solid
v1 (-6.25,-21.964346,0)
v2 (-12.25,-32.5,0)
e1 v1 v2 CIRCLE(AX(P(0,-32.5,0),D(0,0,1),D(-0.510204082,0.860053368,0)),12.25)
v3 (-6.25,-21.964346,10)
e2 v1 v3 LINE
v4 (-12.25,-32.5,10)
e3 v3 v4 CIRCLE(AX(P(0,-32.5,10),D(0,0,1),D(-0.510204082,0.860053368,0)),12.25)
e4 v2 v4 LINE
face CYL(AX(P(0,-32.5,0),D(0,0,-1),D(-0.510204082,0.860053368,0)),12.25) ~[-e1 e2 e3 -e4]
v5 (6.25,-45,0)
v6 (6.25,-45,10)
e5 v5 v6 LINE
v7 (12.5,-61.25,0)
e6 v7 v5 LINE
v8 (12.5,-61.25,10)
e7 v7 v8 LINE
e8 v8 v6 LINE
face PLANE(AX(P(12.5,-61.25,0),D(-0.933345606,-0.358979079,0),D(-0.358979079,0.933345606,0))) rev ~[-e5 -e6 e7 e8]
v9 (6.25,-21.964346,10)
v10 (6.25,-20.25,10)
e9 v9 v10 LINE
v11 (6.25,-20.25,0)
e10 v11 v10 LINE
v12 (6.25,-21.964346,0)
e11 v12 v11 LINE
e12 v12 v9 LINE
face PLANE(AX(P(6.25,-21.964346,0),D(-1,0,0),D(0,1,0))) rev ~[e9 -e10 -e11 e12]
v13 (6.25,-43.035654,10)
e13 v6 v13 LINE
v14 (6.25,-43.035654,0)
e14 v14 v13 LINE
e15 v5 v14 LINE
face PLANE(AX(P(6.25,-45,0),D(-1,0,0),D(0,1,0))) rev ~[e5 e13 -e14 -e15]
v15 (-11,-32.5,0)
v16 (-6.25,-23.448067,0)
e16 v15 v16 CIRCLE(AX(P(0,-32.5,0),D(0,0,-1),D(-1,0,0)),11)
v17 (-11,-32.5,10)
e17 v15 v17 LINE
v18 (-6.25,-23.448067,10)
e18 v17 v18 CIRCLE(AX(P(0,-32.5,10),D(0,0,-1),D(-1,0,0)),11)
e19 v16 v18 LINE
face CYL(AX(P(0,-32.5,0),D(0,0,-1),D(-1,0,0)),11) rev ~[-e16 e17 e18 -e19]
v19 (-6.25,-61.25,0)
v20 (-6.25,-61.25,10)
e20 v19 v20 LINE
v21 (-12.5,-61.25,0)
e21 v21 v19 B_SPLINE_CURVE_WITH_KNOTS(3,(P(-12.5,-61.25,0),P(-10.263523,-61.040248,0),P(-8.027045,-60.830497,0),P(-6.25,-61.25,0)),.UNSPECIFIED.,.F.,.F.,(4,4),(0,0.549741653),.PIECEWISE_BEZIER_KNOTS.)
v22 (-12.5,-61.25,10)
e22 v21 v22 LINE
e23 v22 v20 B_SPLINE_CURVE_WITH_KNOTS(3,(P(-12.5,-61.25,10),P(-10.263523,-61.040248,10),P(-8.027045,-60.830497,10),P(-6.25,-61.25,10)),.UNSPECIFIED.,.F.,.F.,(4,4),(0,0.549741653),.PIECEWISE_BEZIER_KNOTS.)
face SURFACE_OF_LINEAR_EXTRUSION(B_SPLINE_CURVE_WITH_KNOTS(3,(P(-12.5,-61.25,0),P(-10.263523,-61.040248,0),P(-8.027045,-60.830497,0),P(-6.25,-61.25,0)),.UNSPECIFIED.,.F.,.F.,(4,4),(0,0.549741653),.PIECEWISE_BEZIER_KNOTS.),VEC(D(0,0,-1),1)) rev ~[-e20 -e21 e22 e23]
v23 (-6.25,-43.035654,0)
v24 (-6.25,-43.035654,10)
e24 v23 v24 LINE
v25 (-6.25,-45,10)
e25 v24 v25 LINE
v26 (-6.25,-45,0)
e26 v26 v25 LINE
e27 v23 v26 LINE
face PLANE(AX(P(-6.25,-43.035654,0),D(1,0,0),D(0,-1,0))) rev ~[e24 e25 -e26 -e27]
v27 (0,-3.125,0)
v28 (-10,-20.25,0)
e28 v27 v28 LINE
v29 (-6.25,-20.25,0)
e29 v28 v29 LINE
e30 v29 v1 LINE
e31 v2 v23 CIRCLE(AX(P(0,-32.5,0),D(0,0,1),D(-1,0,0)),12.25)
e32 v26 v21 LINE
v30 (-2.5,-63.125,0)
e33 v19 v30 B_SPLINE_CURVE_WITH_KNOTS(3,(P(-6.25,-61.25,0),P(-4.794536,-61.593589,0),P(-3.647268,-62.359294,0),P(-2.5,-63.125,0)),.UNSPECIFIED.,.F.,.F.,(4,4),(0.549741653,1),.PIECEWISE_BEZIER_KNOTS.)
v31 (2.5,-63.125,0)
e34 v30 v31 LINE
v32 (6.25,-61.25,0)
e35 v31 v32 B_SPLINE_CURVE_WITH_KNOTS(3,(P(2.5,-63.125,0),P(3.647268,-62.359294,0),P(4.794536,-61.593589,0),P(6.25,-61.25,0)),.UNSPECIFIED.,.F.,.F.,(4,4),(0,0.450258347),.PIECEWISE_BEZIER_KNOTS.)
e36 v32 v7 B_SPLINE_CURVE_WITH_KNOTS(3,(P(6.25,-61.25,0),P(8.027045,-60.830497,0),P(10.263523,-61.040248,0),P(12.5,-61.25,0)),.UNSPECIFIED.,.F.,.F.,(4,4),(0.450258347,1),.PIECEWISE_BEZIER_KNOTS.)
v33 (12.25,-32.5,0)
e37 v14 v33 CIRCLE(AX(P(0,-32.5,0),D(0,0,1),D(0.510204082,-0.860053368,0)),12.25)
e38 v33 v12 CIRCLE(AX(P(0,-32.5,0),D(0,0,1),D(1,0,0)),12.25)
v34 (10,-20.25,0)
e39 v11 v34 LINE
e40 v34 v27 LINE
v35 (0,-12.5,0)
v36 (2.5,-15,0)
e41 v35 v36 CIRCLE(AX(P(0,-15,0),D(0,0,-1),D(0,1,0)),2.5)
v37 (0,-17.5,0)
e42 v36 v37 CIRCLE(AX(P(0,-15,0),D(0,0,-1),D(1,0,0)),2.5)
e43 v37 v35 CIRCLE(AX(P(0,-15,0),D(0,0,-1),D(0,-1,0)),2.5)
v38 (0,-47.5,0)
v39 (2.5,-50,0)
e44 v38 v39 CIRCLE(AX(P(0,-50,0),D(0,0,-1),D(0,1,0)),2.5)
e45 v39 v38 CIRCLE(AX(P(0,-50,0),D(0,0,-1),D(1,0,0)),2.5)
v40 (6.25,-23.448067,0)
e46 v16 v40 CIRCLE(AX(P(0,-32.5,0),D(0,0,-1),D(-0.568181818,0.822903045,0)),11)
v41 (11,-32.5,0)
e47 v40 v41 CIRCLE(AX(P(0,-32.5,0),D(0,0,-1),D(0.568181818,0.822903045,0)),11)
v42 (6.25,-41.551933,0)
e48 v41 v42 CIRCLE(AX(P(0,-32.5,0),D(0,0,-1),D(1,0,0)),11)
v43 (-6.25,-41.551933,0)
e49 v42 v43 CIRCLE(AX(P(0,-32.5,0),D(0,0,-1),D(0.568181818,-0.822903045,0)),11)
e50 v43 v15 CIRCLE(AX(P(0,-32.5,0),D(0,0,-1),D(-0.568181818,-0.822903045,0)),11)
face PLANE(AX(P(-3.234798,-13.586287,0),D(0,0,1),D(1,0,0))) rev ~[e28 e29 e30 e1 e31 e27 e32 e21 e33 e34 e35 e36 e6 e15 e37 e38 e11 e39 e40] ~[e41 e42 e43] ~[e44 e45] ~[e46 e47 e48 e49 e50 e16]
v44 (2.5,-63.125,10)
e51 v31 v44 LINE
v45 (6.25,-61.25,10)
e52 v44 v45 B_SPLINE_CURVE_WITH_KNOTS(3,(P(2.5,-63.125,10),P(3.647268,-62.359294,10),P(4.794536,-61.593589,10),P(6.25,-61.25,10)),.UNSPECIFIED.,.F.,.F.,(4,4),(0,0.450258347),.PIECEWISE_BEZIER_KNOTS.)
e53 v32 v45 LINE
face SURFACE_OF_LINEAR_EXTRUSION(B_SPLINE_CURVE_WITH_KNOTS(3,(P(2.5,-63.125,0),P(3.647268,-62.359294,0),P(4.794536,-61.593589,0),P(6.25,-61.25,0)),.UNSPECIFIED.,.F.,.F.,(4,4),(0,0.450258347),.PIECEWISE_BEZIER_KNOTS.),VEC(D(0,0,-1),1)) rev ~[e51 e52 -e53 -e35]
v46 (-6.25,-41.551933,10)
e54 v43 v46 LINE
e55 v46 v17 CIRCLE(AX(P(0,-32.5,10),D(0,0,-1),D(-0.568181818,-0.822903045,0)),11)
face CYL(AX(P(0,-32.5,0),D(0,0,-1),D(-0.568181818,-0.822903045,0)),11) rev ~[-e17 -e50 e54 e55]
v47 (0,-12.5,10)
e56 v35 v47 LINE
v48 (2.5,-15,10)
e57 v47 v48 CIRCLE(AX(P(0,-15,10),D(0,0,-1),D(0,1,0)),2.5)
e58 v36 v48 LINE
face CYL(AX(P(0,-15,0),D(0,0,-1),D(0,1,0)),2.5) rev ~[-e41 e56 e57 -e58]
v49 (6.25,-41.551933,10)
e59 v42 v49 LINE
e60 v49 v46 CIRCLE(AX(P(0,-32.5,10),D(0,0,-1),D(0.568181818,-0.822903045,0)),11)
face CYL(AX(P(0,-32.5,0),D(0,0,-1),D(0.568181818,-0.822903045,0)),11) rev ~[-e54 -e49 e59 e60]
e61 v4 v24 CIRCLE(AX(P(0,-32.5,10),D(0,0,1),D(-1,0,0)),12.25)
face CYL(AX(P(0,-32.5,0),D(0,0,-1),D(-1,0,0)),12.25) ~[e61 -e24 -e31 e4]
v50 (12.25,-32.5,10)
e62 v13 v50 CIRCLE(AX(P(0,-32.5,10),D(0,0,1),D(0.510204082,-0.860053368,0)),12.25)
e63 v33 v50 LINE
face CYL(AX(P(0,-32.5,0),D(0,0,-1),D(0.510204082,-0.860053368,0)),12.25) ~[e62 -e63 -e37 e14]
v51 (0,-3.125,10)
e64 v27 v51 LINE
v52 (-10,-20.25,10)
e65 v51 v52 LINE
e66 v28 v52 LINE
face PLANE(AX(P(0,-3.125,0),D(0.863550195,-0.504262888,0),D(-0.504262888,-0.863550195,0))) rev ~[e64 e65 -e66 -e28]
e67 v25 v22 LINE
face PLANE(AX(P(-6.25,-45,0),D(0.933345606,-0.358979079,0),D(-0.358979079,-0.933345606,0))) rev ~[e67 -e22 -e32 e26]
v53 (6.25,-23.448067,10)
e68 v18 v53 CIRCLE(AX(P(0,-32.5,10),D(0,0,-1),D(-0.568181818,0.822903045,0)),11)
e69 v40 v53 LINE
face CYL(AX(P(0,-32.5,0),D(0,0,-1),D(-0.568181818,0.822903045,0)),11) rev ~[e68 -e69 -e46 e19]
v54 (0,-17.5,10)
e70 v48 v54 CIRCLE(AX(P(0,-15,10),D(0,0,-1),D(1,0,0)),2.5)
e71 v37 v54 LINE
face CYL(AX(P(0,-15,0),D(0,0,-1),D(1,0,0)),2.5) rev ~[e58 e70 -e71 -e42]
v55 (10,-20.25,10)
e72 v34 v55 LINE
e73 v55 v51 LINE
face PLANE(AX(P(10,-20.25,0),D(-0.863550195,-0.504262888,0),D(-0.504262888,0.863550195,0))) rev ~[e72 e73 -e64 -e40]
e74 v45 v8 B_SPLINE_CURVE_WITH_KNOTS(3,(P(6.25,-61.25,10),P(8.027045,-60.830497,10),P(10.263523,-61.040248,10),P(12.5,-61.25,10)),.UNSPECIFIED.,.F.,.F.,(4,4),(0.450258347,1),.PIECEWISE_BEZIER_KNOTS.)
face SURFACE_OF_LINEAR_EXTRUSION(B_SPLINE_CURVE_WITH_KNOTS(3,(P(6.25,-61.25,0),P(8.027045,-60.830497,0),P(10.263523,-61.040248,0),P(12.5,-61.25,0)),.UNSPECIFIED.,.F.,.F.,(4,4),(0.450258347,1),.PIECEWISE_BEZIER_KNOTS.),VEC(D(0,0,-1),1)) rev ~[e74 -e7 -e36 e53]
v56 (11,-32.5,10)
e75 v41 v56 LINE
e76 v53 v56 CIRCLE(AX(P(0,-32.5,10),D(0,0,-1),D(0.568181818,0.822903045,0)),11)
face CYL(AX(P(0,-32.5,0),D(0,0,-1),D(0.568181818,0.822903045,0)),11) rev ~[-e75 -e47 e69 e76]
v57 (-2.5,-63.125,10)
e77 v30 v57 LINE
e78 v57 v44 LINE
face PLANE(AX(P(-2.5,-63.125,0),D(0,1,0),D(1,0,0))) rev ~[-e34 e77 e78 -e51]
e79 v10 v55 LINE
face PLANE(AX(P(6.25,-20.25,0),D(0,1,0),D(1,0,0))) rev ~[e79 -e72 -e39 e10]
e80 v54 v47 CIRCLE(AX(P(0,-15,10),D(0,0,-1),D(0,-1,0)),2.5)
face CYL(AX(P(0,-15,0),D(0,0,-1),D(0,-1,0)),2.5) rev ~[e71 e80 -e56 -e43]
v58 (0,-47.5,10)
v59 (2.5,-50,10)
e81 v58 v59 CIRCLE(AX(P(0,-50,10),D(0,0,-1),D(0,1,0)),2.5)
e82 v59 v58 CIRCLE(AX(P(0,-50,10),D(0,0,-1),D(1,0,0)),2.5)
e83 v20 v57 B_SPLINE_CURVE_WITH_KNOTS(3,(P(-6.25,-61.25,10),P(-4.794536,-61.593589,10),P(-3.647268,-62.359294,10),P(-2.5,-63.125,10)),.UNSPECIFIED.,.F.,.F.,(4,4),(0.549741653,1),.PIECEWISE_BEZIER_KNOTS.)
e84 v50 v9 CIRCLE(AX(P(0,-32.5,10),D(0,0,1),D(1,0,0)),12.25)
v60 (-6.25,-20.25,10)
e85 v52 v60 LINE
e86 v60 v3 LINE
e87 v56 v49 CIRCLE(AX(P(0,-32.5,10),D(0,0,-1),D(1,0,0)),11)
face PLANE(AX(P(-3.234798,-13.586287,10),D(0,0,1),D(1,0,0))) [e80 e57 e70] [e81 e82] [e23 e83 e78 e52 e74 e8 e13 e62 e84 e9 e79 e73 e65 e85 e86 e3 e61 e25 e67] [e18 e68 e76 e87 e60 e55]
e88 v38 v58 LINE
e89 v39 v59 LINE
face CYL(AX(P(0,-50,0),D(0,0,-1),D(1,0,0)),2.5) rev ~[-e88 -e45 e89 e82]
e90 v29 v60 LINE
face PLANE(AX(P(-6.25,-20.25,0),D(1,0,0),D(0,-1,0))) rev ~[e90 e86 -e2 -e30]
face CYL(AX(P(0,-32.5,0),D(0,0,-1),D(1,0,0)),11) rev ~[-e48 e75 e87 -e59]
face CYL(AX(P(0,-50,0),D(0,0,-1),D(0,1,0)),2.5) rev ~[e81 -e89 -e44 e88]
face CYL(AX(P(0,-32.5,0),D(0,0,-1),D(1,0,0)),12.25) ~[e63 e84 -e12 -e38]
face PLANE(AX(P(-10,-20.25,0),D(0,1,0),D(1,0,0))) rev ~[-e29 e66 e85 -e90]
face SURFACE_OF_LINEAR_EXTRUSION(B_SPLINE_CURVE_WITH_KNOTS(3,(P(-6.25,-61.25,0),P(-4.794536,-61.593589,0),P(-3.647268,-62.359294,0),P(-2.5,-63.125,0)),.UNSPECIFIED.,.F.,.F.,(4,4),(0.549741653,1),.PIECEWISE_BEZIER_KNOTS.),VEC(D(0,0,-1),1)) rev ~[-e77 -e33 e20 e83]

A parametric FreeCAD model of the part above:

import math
import FreeCAD as App
import Part
import Sketcher

V = App.Vector
Q = App.Units.Quantity

doc = App.newDocument("Part")
params = doc.addObject("Spreadsheet::Sheet", "Params")
for row, (alias, value) in enumerate([
    ("sketch1_radius", "11 mm"),
    ("sketch1_radius2", "12.25 mm"),
    ("pad1_length", "10 mm"),
], start=1):
    params.set(f"A{row}", alias)
    params.set(f"B{row}", "=" + value)
    params.setAlias(f"B{row}", alias)

body = doc.addObject("PartDesign::Body", "Body")

# Sketch on XY plane
sketch1 = doc.addObject("Sketcher::SketchObject", "Sketch")
body.addObject(sketch1)
sketch1.AttachmentSupport = (doc.XY_Plane, [""])
sketch1.MapMode = "FlatFace"
sketch1.addGeometry([
    Part.LineSegment(V(0, -3.125, 0), V(-10, -20.25, 0)),  # 0
    Part.LineSegment(V(-10, -20.25, 0), V(-6.25, -20.25, 0)),  # 1
    Part.LineSegment(V(-6.25, -20.25, 0), V(-6.25, -21.964346, 0)),  # 2
    Part.ArcOfCircle(Part.Circle(V(0, -32.5, 0), V(0, 0, 1), 12.25), math.radians(120.677424), math.radians(180)),  # 3
    Part.ArcOfCircle(Part.Circle(V(0, -32.5, 0), V(0, 0, 1), 12.25), math.radians(180), math.radians(239.322576)),  # 4
    Part.LineSegment(V(-6.25, -43.035654, 0), V(-6.25, -45, 0)),  # 5
    Part.LineSegment(V(-6.25, -45, 0), V(-12.5, -61.25, 0)),  # 6
    Part.BSplineCurve([V(-12.5, -61.25, 0), V(-10.263523, -61.040248, 0), V(-8.027045, -60.830497, 0), V(-6.25, -61.25, 0)], [4, 4], [0, 0.549741653], False, 3, [1, 1, 1, 1], False),  # 7
    Part.BSplineCurve([V(-6.25, -61.25, 0), V(-4.794536, -61.593589, 0), V(-3.647268, -62.359294, 0), V(-2.5, -63.125, 0)], [4, 4], [0.549741653, 1], False, 3, [1, 1, 1, 1], False),  # 8
    Part.LineSegment(V(-2.5, -63.125, 0), V(2.5, -63.125, 0)),  # 9
    Part.BSplineCurve([V(2.5, -63.125, 0), V(3.647268, -62.359294, 0), V(4.794536, -61.593589, 0), V(6.25, -61.25, 0)], [4, 4], [0, 0.450258347], False, 3, [1, 1, 1, 1], False),  # 10
    Part.BSplineCurve([V(6.25, -61.25, 0), V(8.027045, -60.830497, 0), V(10.263523, -61.040248, 0), V(12.5, -61.25, 0)], [4, 4], [0.450258347, 1], False, 3, [1, 1, 1, 1], False),  # 11
    Part.LineSegment(V(12.5, -61.25, 0), V(6.25, -45, 0)),  # 12
    Part.LineSegment(V(6.25, -45, 0), V(6.25, -43.035654, 0)),  # 13
    Part.ArcOfCircle(Part.Circle(V(0, -32.5, 0), V(0, 0, 1), 12.25), math.radians(-59.322576), math.radians(0)),  # 14
    Part.ArcOfCircle(Part.Circle(V(0, -32.5, 0), V(0, 0, 1), 12.25), math.radians(0), math.radians(59.322576)),  # 15
    Part.LineSegment(V(6.25, -21.964346, 0), V(6.25, -20.25, 0)),  # 16
    Part.LineSegment(V(6.25, -20.25, 0), V(10, -20.25, 0)),  # 17
    Part.LineSegment(V(10, -20.25, 0), V(0, -3.125, 0)),  # 18
    Part.ArcOfCircle(Part.Circle(V(0, -15, 0), V(0, 0, 1), 2.5), math.radians(90), math.radians(270)),  # 19
    Part.ArcOfCircle(Part.Circle(V(0, -15, 0), V(0, 0, 1), 2.5), math.radians(0), math.radians(90)),  # 20
    Part.ArcOfCircle(Part.Circle(V(0, -15, 0), V(0, 0, 1), 2.5), math.radians(-90), math.radians(0)),  # 21
    Part.ArcOfCircle(Part.Circle(V(0, -32.5, 0), V(0, 0, 1), 11), math.radians(124.623535), math.radians(180)),  # 22
    Part.ArcOfCircle(Part.Circle(V(0, -32.5, 0), V(0, 0, 1), 11), math.radians(55.376465), math.radians(124.623535)),  # 23
    Part.ArcOfCircle(Part.Circle(V(0, -32.5, 0), V(0, 0, 1), 11), math.radians(0), math.radians(55.376465)),  # 24
    Part.ArcOfCircle(Part.Circle(V(0, -32.5, 0), V(0, 0, 1), 11), math.radians(-55.376465), math.radians(0)),  # 25
    Part.ArcOfCircle(Part.Circle(V(0, -32.5, 0), V(0, 0, 1), 11), math.radians(-124.623535), math.radians(-55.376465)),  # 26
    Part.ArcOfCircle(Part.Circle(V(0, -32.5, 0), V(0, 0, 1), 11), math.radians(180), math.radians(235.376465)),  # 27
    Part.ArcOfCircle(Part.Circle(V(0, -50, 0), V(0, 0, 1), 2.5), math.radians(90), math.radians(360)),  # 28
    Part.ArcOfCircle(Part.Circle(V(0, -50, 0), V(0, 0, 1), 2.5), math.radians(0), math.radians(90)),  # 29
], False)
sketch1.addConstraint([
    Sketcher.Constraint("Block", 7),
    Sketcher.Constraint("Block", 8),
    Sketcher.Constraint("Block", 10),
    Sketcher.Constraint("Block", 11),
    Sketcher.Constraint("Coincident", 0, 2, 1, 1),
    Sketcher.Constraint("Coincident", 1, 2, 2, 1),
    Sketcher.Constraint("Coincident", 2, 2, 3, 1),
    Sketcher.Constraint("Tangent", 3, 2, 4, 1),
    Sketcher.Constraint("Coincident", 4, 2, 5, 1),
    Sketcher.Constraint("Coincident", 5, 2, 6, 1),
    Sketcher.Constraint("Coincident", 6, 2, 7, 1),
    Sketcher.Constraint("Coincident", 8, 2, 9, 1),
    Sketcher.Constraint("Coincident", 9, 2, 10, 1),
    Sketcher.Constraint("Coincident", 11, 2, 12, 1),
    Sketcher.Constraint("Coincident", 12, 2, 13, 1),
    Sketcher.Constraint("Coincident", 13, 2, 14, 1),
    Sketcher.Constraint("Tangent", 14, 2, 15, 1),
    Sketcher.Constraint("Coincident", 15, 2, 16, 1),
    Sketcher.Constraint("Coincident", 16, 2, 17, 1),
    Sketcher.Constraint("Coincident", 17, 2, 18, 1),
    Sketcher.Constraint("Coincident", 18, 2, 0, 1),
    Sketcher.Constraint("Tangent", 19, 1, 20, 2),
    Sketcher.Constraint("Tangent", 20, 1, 21, 2),
    Sketcher.Constraint("Tangent", 21, 1, 19, 2),
    Sketcher.Constraint("Tangent", 22, 1, 23, 2),
    Sketcher.Constraint("Tangent", 23, 1, 24, 2),
    Sketcher.Constraint("Tangent", 24, 1, 25, 2),
    Sketcher.Constraint("Tangent", 25, 1, 26, 2),
    Sketcher.Constraint("Tangent", 26, 1, 27, 2),
    Sketcher.Constraint("Tangent", 27, 1, 22, 2),
    Sketcher.Constraint("Tangent", 28, 1, 29, 2),
    Sketcher.Constraint("Coincident", 29, 1, 28, 2),
    Sketcher.Constraint("Horizontal", 1),
    Sketcher.Constraint("Vertical", 2),
    Sketcher.Constraint("Vertical", 5),
    Sketcher.Constraint("Vertical", 13),
    Sketcher.Constraint("Vertical", 16),
    Sketcher.Constraint("Horizontal", 17),
    Sketcher.Constraint("Coincident", 14, 3, 3, 3),
    Sketcher.Constraint("Coincident", 22, 3, 3, 3),
    Sketcher.Constraint("Coincident", 24, 3, 3, 3),
    Sketcher.Constraint("Equal", 3, 4),
    Sketcher.Constraint("Equal", 4, 14),
    Sketcher.Constraint("Equal", 14, 15),
    Sketcher.Constraint("Equal", 24, 25),
    Sketcher.Constraint("Equal", 21, 28),
    Sketcher.Constraint("Symmetric", 5, 2, 12, 2, -2),
    Sketcher.Constraint("Symmetric", 3, 2, 14, 2, -2),
    Sketcher.Constraint("Symmetric", 1, 2, 16, 2, -2),
    Sketcher.Constraint("PointOnObject", 19, 3, -2),
    Sketcher.Constraint("PointOnObject", 28, 3, -2),
    Sketcher.Constraint("PointOnObject", 18, 2, -2),
    Sketcher.Constraint("PointOnObject", 19, 1, -2),
    Sketcher.Constraint("PointOnObject", 21, 1, -2),
    Sketcher.Constraint("PointOnObject", 28, 1, -2),
    Sketcher.Constraint("Horizontal", 27, 3, 3, 2),
    Sketcher.Constraint("Horizontal", 21, 3, 20, 1),
    Sketcher.Constraint("Horizontal", 22, 1, 23, 1),
    Sketcher.Constraint("Horizontal", 14, 2, 24, 1),
    Sketcher.Constraint("Horizontal", 25, 1, 26, 1),
    Sketcher.Constraint("Horizontal", 24, 1, 27, 1),
    Sketcher.Constraint("Horizontal", 28, 3, 29, 1),
    Sketcher.Constraint("Vertical", 2, 2, 4, 2),
    Sketcher.Constraint("Vertical", 9, 2, 20, 1),
    Sketcher.Constraint("Vertical", 5, 2, 22, 1),
    Sketcher.Constraint("Vertical", 23, 1, 25, 1),
    Sketcher.Constraint("Equal", 1, 17),
    Sketcher.Constraint("Radius", 22, Q("11 mm")),
    Sketcher.Constraint("Radius", 3, Q("12.25 mm")),
    Sketcher.Constraint("DistanceY", 19, 3, -1, 1, Q("15 mm")),
    Sketcher.Constraint("DistanceY", 28, 3, -1, 1, Q("50 mm")),
    Sketcher.Constraint("DistanceX", 0, 2, -1, 1, Q("10 mm")),
    Sketcher.Constraint("DistanceY", 5, 2, -1, 1, Q("45 mm")),
    Sketcher.Constraint("DistanceX", 3, 2, 2, 2, Q("6 mm")),
    Sketcher.Constraint("DistanceY", 3, 3, -1, 1, Q("32.5 mm")),
    Sketcher.Constraint("DistanceY", 0, 2, -1, 1, Q("20.25 mm")),
    Sketcher.Constraint("DistanceY", 18, 2, -1, 1, Q("3.125 mm")),
])
sketch1.setExpression("Constraints[67]", "Params.sketch1_radius")
sketch1.setExpression("Constraints[68]", "Params.sketch1_radius2")
pad1 = doc.addObject("PartDesign::Pad", "Pad")
body.addObject(pad1)
pad1.Profile = sketch1
pad1.setExpression("Length", "Params.pad1_length")

doc.recompute()
